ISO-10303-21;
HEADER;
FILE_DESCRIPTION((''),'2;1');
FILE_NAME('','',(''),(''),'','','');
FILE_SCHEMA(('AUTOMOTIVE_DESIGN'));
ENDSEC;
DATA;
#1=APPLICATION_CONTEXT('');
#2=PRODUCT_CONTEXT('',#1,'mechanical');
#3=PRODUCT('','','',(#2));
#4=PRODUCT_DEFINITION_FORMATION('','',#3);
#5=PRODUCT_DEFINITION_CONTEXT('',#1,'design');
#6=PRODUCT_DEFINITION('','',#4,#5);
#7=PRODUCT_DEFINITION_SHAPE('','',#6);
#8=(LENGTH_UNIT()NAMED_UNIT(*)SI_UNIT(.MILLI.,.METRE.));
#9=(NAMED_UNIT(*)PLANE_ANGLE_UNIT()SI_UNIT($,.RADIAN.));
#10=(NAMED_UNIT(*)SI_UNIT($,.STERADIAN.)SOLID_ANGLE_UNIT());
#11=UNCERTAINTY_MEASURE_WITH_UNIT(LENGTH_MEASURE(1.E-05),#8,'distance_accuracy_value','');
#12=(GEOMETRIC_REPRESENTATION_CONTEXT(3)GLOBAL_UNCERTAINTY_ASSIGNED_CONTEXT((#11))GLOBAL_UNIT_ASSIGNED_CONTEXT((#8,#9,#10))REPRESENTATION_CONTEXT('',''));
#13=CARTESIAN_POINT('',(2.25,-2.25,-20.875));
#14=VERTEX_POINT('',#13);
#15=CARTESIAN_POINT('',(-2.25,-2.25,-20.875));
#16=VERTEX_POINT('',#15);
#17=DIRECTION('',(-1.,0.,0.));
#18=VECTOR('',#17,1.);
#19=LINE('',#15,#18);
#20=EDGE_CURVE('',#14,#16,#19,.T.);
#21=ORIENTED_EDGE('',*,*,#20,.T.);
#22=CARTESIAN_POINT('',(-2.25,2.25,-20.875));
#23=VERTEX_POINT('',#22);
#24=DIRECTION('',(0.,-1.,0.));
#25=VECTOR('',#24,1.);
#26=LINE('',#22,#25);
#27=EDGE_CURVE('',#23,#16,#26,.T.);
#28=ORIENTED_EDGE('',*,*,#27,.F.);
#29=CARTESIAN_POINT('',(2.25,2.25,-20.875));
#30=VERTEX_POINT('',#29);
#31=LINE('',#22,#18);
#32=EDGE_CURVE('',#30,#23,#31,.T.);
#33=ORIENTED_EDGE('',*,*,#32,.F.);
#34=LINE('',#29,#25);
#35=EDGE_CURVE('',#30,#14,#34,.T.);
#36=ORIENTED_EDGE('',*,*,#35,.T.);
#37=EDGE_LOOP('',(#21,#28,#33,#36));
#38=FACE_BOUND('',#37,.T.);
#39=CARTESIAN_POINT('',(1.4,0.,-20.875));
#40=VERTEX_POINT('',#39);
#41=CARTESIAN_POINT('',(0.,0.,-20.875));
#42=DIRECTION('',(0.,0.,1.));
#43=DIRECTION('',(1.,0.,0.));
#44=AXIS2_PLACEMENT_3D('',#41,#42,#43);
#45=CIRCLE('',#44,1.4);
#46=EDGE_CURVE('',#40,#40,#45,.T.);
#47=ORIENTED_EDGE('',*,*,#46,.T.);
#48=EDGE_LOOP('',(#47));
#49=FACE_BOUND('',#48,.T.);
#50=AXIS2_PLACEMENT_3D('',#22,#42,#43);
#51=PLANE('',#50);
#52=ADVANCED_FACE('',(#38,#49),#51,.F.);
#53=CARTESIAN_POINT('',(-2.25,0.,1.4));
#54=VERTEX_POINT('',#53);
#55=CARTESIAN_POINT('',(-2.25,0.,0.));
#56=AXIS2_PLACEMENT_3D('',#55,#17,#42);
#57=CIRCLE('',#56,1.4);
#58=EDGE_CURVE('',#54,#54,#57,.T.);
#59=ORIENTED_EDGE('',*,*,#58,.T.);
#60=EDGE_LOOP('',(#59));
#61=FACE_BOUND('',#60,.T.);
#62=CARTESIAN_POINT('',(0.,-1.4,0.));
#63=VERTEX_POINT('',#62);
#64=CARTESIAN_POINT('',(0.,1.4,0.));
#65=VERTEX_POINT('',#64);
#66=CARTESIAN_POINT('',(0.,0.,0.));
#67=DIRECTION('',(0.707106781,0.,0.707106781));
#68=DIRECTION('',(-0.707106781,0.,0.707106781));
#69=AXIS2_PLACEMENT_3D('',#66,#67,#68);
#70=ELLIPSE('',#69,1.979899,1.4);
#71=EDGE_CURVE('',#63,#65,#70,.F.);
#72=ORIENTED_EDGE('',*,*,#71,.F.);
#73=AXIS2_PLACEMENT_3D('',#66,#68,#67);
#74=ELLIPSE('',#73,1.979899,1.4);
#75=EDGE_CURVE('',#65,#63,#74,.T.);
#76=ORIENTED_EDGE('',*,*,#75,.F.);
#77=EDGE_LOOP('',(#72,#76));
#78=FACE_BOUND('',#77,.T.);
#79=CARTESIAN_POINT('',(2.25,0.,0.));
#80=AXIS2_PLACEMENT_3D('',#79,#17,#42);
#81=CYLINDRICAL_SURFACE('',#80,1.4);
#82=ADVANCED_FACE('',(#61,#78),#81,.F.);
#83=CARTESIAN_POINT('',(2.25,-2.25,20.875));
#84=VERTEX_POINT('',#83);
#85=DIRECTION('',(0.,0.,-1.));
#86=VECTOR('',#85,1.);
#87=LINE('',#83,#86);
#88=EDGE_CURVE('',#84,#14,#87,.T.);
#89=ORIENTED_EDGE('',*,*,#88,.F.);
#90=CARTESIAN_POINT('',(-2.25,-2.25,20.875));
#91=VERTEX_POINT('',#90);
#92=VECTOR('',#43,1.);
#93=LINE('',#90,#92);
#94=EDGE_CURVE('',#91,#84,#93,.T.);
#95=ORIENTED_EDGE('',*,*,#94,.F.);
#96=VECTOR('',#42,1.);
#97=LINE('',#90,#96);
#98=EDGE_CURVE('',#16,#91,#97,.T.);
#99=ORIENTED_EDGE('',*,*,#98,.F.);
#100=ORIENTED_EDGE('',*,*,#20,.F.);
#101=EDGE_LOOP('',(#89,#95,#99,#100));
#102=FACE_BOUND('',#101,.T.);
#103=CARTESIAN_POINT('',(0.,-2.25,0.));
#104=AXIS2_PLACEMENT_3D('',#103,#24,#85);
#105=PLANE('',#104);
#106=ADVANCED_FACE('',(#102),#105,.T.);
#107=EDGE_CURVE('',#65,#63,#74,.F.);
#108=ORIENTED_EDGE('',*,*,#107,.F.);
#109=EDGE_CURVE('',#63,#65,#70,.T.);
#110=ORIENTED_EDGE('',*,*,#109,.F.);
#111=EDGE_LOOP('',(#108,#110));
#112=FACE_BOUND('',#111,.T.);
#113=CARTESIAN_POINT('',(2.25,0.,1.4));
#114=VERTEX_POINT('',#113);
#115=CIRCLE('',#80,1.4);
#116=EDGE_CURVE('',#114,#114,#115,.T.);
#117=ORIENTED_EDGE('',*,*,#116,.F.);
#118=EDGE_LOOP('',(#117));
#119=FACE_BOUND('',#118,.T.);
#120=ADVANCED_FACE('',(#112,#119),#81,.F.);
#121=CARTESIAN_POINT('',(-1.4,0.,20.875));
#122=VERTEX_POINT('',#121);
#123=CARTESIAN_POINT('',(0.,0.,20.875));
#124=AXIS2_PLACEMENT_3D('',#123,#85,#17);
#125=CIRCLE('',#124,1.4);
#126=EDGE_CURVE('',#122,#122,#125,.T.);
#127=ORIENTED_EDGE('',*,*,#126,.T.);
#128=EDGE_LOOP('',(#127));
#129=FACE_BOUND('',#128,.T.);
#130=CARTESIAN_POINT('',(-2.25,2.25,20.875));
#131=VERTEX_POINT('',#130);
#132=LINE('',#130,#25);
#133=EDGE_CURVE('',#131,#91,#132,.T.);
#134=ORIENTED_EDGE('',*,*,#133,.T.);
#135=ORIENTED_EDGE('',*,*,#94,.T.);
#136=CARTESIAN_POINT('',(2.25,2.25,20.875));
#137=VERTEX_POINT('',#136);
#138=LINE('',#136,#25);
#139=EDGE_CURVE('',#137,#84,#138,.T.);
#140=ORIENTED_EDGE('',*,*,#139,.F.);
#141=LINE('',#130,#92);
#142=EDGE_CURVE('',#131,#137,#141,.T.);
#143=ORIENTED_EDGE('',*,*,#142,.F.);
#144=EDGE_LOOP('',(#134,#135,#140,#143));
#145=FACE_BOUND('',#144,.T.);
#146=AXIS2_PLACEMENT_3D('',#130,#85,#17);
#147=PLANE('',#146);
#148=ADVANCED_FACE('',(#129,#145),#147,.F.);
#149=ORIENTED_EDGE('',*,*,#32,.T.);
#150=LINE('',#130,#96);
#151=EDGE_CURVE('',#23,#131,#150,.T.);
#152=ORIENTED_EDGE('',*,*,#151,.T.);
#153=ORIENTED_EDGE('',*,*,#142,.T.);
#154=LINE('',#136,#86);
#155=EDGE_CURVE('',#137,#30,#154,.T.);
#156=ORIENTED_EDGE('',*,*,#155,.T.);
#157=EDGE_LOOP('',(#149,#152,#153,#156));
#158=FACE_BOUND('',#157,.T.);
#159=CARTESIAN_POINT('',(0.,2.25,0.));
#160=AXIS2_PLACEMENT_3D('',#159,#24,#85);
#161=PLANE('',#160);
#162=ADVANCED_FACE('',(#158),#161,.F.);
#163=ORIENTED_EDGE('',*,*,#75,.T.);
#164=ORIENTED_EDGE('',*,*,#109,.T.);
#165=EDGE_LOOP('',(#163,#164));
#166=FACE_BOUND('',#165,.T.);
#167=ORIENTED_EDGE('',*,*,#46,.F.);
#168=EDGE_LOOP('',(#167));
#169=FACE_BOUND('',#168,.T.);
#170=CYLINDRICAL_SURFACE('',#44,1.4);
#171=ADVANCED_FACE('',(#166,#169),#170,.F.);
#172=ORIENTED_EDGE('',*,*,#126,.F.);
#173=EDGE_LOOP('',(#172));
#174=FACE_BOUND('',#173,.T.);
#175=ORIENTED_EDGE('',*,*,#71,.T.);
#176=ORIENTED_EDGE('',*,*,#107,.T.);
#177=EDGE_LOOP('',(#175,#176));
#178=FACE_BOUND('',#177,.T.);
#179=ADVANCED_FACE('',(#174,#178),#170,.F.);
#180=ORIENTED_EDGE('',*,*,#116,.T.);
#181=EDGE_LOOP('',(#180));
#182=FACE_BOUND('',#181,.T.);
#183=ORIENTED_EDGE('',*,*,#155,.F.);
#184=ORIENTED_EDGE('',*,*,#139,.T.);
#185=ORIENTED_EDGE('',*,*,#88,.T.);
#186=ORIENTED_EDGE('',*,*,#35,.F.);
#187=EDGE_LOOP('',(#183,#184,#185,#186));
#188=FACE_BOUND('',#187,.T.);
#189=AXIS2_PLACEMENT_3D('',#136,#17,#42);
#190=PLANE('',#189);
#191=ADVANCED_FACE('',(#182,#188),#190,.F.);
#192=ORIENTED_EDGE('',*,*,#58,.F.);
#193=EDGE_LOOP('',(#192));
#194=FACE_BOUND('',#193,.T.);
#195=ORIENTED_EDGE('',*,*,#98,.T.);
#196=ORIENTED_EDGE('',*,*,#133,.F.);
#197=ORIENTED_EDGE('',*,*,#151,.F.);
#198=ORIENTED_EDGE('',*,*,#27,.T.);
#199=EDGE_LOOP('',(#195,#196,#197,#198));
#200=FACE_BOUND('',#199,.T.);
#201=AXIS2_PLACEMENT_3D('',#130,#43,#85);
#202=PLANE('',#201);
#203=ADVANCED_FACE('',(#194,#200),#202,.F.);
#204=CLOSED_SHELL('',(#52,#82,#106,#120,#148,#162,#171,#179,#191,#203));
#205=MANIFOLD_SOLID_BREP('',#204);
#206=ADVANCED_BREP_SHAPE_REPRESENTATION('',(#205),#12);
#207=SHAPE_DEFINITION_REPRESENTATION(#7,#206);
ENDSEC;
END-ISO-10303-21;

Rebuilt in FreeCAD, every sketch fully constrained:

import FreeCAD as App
import Part
import Sketcher


def add_polygon(sketch, points):
    """Adds a closed chain of lines whose ends are joined by coincident constraints."""
    first, n = sketch.GeometryCount, len(points)
    for a, b in zip(points, points[1:] + points[:1]):
        sketch.addGeometry(Part.LineSegment(App.Vector(*a, 0), App.Vector(*b, 0)), False)
    for i in range(n):
        sketch.addConstraint(Sketcher.Constraint("Coincident", first + i, 2, first + (i + 1) % n, 1))

doc = App.newDocument("Part")
body = doc.addObject("PartDesign::Body", "Body")

# Sketch on XZ plane
sketch1 = body.newObject("Sketcher::SketchObject", "Sketch")
sketch1.AttachmentSupport = (doc.getObject("XZ_Plane"), [""])
sketch1.MapMode = "FlatFace"
add_polygon(sketch1, [(-2.2, -20.9), (-2.2, 20.9), (2.2, 20.9), (2.2, -20.9)])  # lines 0-3
sketch1.addConstraint([
    Sketcher.Constraint("Vertical", 0),
    Sketcher.Constraint("Horizontal", 1),
    Sketcher.Constraint("Vertical", 2),
    Sketcher.Constraint("Horizontal", 3),
    Sketcher.Constraint("Symmetric", 0, 2, 2, 2, -1, 1),
    Sketcher.Constraint("DistanceX", 1, 1, 1, 2, 4.5),
    Sketcher.Constraint("DistanceY", 0, 1, 0, 2, 41.75),
])
pad1 = body.newObject("PartDesign::Pad", "Pad")
pad1.Profile = sketch1
pad1.Length = 4.5
pad1.Midplane = True

# Sketch on XY plane
sketch2 = body.newObject("Sketcher::SketchObject", "Sketch001")
sketch2.AttachmentSupport = (doc.getObject("XY_Plane"), [""])
sketch2.MapMode = "FlatFace"
sketch2.AttachmentOffset = App.Placement(App.Vector(0, 0, 20.875), App.Rotation())
sketch2.addGeometry(Part.Circle(App.Vector(0, 0, 0), App.Vector(0, 0, 1), 1.4), False)
sketch2.addConstraint([
    Sketcher.Constraint("Coincident", 0, 3, -1, 1),
    Sketcher.Constraint("Diameter", 0, 2.8),
])
pocket1 = body.newObject("PartDesign::Pocket", "Pocket")
pocket1.Profile = sketch2
pocket1.Type = "ThroughAll"
pocket1.Midplane = True

# Sketch on YZ plane
sketch3 = body.newObject("Sketcher::SketchObject", "Sketch002")
sketch3.AttachmentSupport = (doc.getObject("YZ_Plane"), [""])
sketch3.MapMode = "FlatFace"
sketch3.AttachmentOffset = App.Placement(App.Vector(0, 0, -2.25), App.Rotation())
sketch3.addGeometry(Part.Circle(App.Vector(0, 0, 0), App.Vector(0, 0, 1), 1.4), False)
sketch3.addConstraint([
    Sketcher.Constraint("Coincident", 0, 3, -1, 1),
    Sketcher.Constraint("Diameter", 0, 2.8),
])
pocket2 = body.newObject("PartDesign::Pocket", "Pocket001")
pocket2.Profile = sketch3
pocket2.Type = "ThroughAll"
pocket2.Midplane = True

doc.recompute()
